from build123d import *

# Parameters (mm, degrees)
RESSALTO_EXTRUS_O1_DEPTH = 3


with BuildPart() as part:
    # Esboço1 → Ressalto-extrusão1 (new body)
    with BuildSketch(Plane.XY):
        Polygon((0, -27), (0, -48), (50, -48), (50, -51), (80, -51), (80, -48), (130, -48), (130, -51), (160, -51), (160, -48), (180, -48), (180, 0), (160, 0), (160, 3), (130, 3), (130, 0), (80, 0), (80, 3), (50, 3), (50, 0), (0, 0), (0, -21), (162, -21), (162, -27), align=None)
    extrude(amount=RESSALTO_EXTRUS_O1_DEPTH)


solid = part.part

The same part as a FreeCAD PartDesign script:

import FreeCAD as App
import Part
import Sketcher

V = App.Vector


def add_polygon(sketch, points):
    """Adds a closed chain of lines whose ends are joined by coincident constraints."""
    first, n = sketch.GeometryCount, len(points)
    for a, b in zip(points, points[1:] + points[:1]):
        sketch.addGeometry(Part.LineSegment(App.Vector(*a, 0), App.Vector(*b, 0)), False)
    for i in range(n):
        sketch.addConstraint(Sketcher.Constraint("Coincident", first + i, 2, first + (i + 1) % n, 1))

doc = App.newDocument("Part")
body = doc.addObject("PartDesign::Body", "Body")

sketch1 = body.newObject("Sketcher::SketchObject", "Sketch")
sketch1.AttachmentSupport = (doc.getObject("XY_Plane"), [""])
sketch1.MapMode = "FlatFace"
add_polygon(sketch1, [(0, -27), (0, -48), (50, -48), (50, -51), (80, -51), (80, -48), (130, -48), (130, -51), (160, -51), (160, -48), (180, -48), (180, 0), (160, 0), (160, 3), (130, 3), (130, 0), (80, 0), (80, 3), (50, 3), (50, 0), (0, 0), (0, -21), (162, -21), (162, -27)])
sketch1.addConstraint([
    Sketcher.Constraint("Vertical", 0),
    Sketcher.Constraint("Horizontal", 1),
    Sketcher.Constraint("Vertical", 2),
    Sketcher.Constraint("Horizontal", 3),
    Sketcher.Constraint("Vertical", 4),
    Sketcher.Constraint("Horizontal", 5),
    Sketcher.Constraint("Vertical", 6),
    Sketcher.Constraint("Horizontal", 7),
    Sketcher.Constraint("Vertical", 8),
    Sketcher.Constraint("Horizontal", 9),
    Sketcher.Constraint("Vertical", 10),
    Sketcher.Constraint("Horizontal", 11),
    Sketcher.Constraint("Vertical", 12),
    Sketcher.Constraint("Horizontal", 13),
    Sketcher.Constraint("Vertical", 14),
    Sketcher.Constraint("Horizontal", 15),
    Sketcher.Constraint("Vertical", 16),
    Sketcher.Constraint("Horizontal", 17),
    Sketcher.Constraint("Vertical", 18),
    Sketcher.Constraint("Horizontal", 19),
    Sketcher.Constraint("Vertical", 20),
    Sketcher.Constraint("Horizontal", 21),
    Sketcher.Constraint("Vertical", 22),
    Sketcher.Constraint("Horizontal", 23),
    Sketcher.Constraint("Coincident", 19, 2, -1, 1),
    Sketcher.Constraint("PointOnObject", 0, 2, -2),
    Sketcher.Constraint("PointOnObject", 10, 2, -1),
    Sketcher.Constraint("PointOnObject", 14, 2, -1),
    Sketcher.Constraint("Horizontal", 1, 2, 4, 2),
    Sketcher.Constraint("Horizontal", 3, 2, 6, 2),
    Sketcher.Constraint("Horizontal", 5, 2, 8, 2),
    Sketcher.Constraint("Horizontal", 13, 2, 16, 2),
    Sketcher.Constraint("Vertical", 8, 2, 11, 2),
    Sketcher.Constraint("Vertical", 6, 2, 13, 2),
    Sketcher.Constraint("Vertical", 4, 2, 15, 2),
    Sketcher.Constraint("Vertical", 2, 2, 17, 2),
    Sketcher.Constraint("Equal", 1, 5),
    Sketcher.Constraint("Equal", 3, 7),
    Sketcher.Constraint("Equal", 8, 12),
    Sketcher.Constraint("Equal", 0, 20),
    Sketcher.Constraint("DistanceX", 1, 1, 1, 2, 50.0),
    Sketcher.Constraint("DistanceX", 3, 1, 3, 2, 30.0),
    Sketcher.Constraint("DistanceX", 9, 1, 9, 2, 20.0),
    Sketcher.Constraint("DistanceX", 21, 1, 21, 2, 162.0),
    Sketcher.Constraint("DistanceY", 0, 2, 0, 1, 21.0),
    Sketcher.Constraint("DistanceY", 2, 2, 2, 1, 3.0),
    Sketcher.Constraint("DistanceY", 10, 1, 10, 2, 48.0),
])
pad1 = body.newObject("PartDesign::Pad", "Pad")
pad1.Profile = sketch1
pad1.Length = 3

doc.recompute()
